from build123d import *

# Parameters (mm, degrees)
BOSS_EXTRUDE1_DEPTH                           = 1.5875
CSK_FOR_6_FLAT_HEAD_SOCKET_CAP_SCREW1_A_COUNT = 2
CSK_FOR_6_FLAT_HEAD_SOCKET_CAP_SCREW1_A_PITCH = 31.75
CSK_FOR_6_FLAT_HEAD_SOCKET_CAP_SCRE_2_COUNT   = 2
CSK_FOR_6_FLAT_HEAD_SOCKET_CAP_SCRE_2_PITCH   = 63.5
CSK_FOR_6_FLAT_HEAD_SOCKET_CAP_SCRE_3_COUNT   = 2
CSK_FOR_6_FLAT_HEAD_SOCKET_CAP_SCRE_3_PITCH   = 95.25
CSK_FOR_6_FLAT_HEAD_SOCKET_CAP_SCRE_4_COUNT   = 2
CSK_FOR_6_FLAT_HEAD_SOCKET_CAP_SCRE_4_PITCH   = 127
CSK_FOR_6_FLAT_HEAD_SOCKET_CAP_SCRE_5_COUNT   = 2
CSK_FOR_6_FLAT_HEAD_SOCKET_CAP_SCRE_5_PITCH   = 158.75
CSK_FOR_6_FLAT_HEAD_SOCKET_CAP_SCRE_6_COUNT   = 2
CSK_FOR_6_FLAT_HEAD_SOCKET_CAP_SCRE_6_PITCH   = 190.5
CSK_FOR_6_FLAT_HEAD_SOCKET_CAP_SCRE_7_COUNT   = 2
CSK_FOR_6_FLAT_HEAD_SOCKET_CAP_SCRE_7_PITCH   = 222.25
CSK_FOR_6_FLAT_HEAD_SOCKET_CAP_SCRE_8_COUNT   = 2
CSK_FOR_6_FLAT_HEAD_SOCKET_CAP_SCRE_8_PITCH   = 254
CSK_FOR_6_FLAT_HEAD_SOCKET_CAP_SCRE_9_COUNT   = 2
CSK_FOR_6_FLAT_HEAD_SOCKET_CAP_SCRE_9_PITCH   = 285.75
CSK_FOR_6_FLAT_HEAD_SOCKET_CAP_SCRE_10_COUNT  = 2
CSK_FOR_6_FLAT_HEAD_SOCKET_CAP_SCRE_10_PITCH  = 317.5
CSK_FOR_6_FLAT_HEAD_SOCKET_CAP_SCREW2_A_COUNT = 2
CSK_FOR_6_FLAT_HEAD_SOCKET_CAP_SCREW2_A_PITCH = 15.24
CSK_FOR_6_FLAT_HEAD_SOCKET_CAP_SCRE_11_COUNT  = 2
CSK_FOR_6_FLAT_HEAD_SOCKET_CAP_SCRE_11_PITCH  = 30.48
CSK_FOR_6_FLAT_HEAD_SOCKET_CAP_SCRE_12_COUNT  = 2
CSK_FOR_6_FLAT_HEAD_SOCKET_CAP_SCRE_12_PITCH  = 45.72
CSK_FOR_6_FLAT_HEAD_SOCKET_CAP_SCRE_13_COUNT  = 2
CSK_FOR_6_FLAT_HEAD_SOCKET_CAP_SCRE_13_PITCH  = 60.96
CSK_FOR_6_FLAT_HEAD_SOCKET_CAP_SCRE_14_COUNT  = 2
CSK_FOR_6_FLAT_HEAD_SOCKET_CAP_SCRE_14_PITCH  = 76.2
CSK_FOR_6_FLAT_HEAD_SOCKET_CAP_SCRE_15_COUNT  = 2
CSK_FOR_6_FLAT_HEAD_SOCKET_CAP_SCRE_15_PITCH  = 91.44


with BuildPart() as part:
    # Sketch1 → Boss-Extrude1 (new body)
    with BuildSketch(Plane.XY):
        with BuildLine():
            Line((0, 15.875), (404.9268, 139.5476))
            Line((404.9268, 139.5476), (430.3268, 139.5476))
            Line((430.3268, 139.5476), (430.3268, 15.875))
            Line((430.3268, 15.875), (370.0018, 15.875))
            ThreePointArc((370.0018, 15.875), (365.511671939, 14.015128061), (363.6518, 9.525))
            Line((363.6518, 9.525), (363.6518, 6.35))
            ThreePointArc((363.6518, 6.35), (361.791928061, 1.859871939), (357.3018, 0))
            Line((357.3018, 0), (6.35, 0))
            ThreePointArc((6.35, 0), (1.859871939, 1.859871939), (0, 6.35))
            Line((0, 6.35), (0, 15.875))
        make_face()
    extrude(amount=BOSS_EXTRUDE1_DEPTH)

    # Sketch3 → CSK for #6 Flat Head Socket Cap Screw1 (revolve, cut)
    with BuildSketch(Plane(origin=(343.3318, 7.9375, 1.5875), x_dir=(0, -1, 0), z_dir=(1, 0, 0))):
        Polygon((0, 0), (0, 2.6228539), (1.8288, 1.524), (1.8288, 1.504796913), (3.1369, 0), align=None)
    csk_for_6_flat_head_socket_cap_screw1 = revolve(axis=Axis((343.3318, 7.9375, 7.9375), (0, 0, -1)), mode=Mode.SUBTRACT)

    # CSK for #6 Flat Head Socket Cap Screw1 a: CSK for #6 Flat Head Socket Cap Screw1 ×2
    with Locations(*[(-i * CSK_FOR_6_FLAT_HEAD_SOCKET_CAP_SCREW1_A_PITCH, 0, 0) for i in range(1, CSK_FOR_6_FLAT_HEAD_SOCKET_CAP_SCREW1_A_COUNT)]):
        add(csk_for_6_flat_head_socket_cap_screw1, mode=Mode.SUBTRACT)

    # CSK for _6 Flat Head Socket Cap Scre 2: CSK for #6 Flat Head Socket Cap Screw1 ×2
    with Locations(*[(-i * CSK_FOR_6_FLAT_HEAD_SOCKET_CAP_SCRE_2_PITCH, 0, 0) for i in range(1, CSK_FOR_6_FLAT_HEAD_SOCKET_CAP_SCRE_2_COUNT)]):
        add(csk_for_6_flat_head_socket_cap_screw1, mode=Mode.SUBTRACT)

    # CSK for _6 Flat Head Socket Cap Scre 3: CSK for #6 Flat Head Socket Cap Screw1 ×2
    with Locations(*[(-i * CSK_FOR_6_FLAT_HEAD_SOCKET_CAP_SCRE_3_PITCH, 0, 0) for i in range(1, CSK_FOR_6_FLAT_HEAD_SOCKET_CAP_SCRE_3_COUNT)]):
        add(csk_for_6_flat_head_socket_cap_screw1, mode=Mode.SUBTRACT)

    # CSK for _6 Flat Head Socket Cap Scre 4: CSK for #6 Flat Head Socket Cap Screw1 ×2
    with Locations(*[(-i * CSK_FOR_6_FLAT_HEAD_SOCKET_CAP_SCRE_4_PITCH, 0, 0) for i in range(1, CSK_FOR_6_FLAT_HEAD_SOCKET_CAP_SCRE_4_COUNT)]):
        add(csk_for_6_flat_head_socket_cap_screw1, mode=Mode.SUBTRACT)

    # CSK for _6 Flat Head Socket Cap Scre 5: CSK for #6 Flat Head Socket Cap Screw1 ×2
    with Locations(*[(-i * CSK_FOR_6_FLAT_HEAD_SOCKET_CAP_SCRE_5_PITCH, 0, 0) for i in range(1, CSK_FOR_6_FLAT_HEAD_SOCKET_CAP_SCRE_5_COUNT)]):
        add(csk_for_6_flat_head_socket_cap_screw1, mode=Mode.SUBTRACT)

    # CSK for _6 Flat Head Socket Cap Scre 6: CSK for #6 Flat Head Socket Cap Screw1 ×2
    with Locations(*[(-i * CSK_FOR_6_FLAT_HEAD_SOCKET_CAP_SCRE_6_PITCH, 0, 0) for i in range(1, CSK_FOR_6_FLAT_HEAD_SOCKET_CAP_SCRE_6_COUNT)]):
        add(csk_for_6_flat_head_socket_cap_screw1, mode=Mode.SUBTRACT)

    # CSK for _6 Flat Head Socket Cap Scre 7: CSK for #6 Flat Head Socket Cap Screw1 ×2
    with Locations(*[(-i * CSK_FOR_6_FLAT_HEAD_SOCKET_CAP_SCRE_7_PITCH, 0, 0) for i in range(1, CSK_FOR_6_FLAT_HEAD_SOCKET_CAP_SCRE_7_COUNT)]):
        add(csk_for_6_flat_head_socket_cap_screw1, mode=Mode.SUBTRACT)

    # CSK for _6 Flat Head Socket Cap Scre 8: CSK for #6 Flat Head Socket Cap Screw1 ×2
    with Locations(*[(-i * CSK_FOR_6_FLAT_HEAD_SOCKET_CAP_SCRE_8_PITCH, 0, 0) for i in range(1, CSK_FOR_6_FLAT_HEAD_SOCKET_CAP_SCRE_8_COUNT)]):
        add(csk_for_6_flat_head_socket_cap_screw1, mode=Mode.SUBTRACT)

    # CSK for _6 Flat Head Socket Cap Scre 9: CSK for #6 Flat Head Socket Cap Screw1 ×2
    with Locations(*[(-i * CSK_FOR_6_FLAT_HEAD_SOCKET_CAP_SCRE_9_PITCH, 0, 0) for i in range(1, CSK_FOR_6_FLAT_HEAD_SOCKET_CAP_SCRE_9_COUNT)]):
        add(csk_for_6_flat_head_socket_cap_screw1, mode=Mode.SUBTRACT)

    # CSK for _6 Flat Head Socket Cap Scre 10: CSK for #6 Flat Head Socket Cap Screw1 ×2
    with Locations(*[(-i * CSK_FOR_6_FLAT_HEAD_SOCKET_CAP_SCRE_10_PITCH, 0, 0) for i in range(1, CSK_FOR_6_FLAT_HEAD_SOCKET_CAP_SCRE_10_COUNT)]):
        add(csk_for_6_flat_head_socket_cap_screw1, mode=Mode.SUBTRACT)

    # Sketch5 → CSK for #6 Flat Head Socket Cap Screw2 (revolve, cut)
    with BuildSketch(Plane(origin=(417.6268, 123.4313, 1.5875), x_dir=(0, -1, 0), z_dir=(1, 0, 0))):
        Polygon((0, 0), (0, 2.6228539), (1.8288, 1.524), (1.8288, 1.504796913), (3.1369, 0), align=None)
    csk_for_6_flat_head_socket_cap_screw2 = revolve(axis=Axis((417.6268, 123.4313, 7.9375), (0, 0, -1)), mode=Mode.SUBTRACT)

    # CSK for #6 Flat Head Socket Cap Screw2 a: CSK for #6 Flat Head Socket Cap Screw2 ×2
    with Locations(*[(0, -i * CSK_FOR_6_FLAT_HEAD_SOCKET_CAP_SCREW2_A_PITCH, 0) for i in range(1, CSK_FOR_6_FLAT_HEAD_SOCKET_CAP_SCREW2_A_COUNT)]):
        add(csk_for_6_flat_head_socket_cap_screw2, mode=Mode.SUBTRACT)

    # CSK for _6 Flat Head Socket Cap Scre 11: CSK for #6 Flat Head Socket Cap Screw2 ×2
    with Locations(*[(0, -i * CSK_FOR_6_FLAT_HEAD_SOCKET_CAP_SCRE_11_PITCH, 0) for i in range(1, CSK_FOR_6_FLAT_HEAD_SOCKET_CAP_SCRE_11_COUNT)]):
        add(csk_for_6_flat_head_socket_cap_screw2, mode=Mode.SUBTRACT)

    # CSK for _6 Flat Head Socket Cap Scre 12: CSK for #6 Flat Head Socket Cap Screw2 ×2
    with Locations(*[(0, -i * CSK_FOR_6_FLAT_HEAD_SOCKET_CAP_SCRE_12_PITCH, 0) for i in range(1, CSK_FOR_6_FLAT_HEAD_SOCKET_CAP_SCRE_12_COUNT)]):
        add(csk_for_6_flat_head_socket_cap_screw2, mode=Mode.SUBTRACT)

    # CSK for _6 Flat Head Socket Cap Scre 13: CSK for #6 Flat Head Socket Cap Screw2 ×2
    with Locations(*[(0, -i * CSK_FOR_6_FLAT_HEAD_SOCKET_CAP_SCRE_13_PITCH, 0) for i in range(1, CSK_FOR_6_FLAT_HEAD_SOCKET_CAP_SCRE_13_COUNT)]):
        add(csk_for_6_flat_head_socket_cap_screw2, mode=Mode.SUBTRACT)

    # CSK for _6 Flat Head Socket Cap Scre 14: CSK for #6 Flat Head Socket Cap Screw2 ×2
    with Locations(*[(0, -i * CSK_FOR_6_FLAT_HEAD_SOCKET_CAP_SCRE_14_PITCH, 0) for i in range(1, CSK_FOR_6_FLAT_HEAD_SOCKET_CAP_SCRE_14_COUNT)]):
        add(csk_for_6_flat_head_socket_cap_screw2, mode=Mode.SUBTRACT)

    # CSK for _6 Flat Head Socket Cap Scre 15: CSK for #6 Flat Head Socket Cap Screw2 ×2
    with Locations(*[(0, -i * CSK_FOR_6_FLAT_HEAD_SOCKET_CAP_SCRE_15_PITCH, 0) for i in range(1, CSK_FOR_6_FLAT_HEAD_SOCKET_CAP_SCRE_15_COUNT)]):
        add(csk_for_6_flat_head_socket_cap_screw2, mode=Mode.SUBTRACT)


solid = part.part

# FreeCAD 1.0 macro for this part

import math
import FreeCAD as App
import Part
import Sketcher
from FreeCAD import Vector
Q = App.Units.Quantity


def add_polygon(sketch, points):
    """Adds a closed chain of lines whose ends are joined by coincident constraints."""
    first, n = sketch.GeometryCount, len(points)
    for a, b in zip(points, points[1:] + points[:1]):
        sketch.addGeometry(Part.LineSegment(App.Vector(*a, 0), App.Vector(*b, 0)), False)
    for i in range(n):
        sketch.addConstraint(Sketcher.Constraint("Coincident", first + i, 2, first + (i + 1) % n, 1))

doc = App.newDocument("Part")
params = doc.addObject("Spreadsheet::Sheet", "Params")
for row, (alias, value) in enumerate([
    ("sketch1_width", "1 in"),
    ("sketch1_radius", "0.25 in"),
    ("sketch1_width2", "13.817 in"),
    ("sketch1_width3", "2.375 in"),
    ("sketch1_height", "0.375 in"),
    ("pad1_length", "0.0625 in"),
    ("groove_angle", "360 deg"),
    ("linearpattern_pitch", "1.25 in"),
    ("linearpattern2_pitch", "2.5 in"),
    ("linearpattern3_pitch", "3.75 in"),
    ("linearpattern4_pitch", "5 in"),
    ("linearpattern5_pitch", "6.25 in"),
    ("linearpattern6_pitch", "7.5 in"),
    ("linearpattern7_pitch", "8.75 in"),
    ("linearpattern8_pitch", "10 in"),
    ("linearpattern9_pitch", "11.25 in"),
    ("linearpattern10_pitch", "12.5 in"),
    ("groove2_angle", "360 deg"),
    ("linearpattern11_pitch", "0.6 in"),
    ("linearpattern12_pitch", "1.2 in"),
    ("linearpattern13_pitch", "1.8 in"),
    ("linearpattern14_pitch", "2.4 in"),
    ("linearpattern15_pitch", "3 in"),
    ("linearpattern16_pitch", "3.6 in"),
], start=1):
    params.set(f"A{row}", alias)
    params.set(f"B{row}", "=" + value)
    params.setAlias(f"B{row}", alias)

body = doc.addObject("PartDesign::Body", "Body")

# Sketch on XY plane
sketch1 = body.newObject("Sketcher::SketchObject", "Sketch")
sketch1.AttachmentSupport = (doc.getObject("XY_Plane"), [""])
sketch1.MapMode = "FlatFace"
sketch1.addGeometry([
    Part.LineSegment(Vector(404.9, 139.5, 0), Vector(0, 15.9, 0)),  # 0
    Part.LineSegment(Vector(0, 15.9, 0), Vector(0, 6.3, 0)),  # 1
    Part.ArcOfCircle(Part.Circle(Vector(6.3, 6.3, 0), Vector(0, 0, 1), 6.3), math.radians(180), math.radians(270)),  # 2
    Part.LineSegment(Vector(6.3, 0, 0), Vector(357.3, 0, 0)),  # 3
    Part.ArcOfCircle(Part.Circle(Vector(357.3, 6.3, 0), Vector(0, 0, 1), 6.3), math.radians(-90), math.radians(0)),  # 4
    Part.LineSegment(Vector(363.7, 6.3, 0), Vector(363.7, 9.5, 0)),  # 5
    Part.ArcOfCircle(Part.Circle(Vector(370, 9.5, 0), Vector(0, 0, 1), 6.3), math.radians(90), math.radians(180)),  # 6
    Part.LineSegment(Vector(370, 15.9, 0), Vector(430.3, 15.9, 0)),  # 7
    Part.LineSegment(Vector(430.3, 15.9, 0), Vector(430.3, 139.5, 0)),  # 8
    Part.LineSegment(Vector(430.3, 139.5, 0), Vector(404.9, 139.5, 0)),  # 9
], False)
sketch1.addConstraint([
    Sketcher.Constraint("Coincident", 0, 2, 1, 1),
    Sketcher.Constraint("Tangent", 1, 2, 2, 1),
    Sketcher.Constraint("Tangent", 2, 2, 3, 1),
    Sketcher.Constraint("Tangent", 3, 2, 4, 1),
    Sketcher.Constraint("Tangent", 4, 2, 5, 1),
    Sketcher.Constraint("Tangent", 5, 2, 6, 2),
    Sketcher.Constraint("Tangent", 6, 1, 7, 1),
    Sketcher.Constraint("Coincident", 7, 2, 8, 1),
    Sketcher.Constraint("Coincident", 8, 2, 9, 1),
    Sketcher.Constraint("Coincident", 9, 2, 0, 1),
    Sketcher.Constraint("Vertical", 1),
    Sketcher.Constraint("Horizontal", 3),
    Sketcher.Constraint("Vertical", 5),
    Sketcher.Constraint("Horizontal", 7),
    Sketcher.Constraint("Vertical", 8),
    Sketcher.Constraint("Horizontal", 9),
    Sketcher.Constraint("Equal", 2, 4),
    Sketcher.Constraint("Equal", 4, 6),
    Sketcher.Constraint("PointOnObject", 0, 2, -2),
    Sketcher.Constraint("PointOnObject", 2, 2, -1),
    Sketcher.Constraint("Horizontal", 0, 2, 6, 1),
    Sketcher.Constraint("DistanceX", 9, 2, 9, 1, Q("1 in")),
    Sketcher.Constraint("Radius", 2, Q("0.25 in")),
    Sketcher.Constraint("DistanceX", 3, 1, 3, 2, Q("13.817 in")),
    Sketcher.Constraint("DistanceX", 7, 1, 7, 2, Q("2.375 in")),
    Sketcher.Constraint("DistanceY", 1, 2, 1, 1, Q("0.375 in")),
    Sketcher.Constraint("DistanceY", 8, 1, 8, 2, Q("4.869 in")),
])
sketch1.setExpression("Constraints[21]", "Params.sketch1_width")
sketch1.setExpression("Constraints[22]", "Params.sketch1_radius")
sketch1.setExpression("Constraints[23]", "Params.sketch1_width2")
sketch1.setExpression("Constraints[24]", "Params.sketch1_width3")
sketch1.setExpression("Constraints[25]", "Params.sketch1_height")
pad1 = body.newObject("PartDesign::Pad", "Pad")
pad1.Profile = sketch1
pad1.setExpression("Length", "Params.pad1_length")

# Sketch on YZ plane
sketch2 = body.newObject("Sketcher::SketchObject", "Sketch001")
sketch2.AttachmentSupport = (doc.getObject("YZ_Plane"), [""])
sketch2.MapMode = "FlatFace"
sketch2.AttachmentOffset = App.Placement(Vector(0, 0, 13.517 * 25.4), App.Rotation())
add_polygon(sketch2, [(7.938, -1.035), (7.938, 1.587), (4.801, 1.587), (6.109, 0.083), (6.109, 0.064)])  # lines 0-4
sketch2.addGeometry(Part.LineSegment(Vector(7.938, 1.587, 0), Vector(7.938, -1.035, 0)), True)  # axis
sketch2.addConstraint([
    Sketcher.Constraint("Vertical", 0),
    Sketcher.Constraint("Horizontal", 1),
    Sketcher.Constraint("Vertical", 3),
    Sketcher.Constraint("Vertical", 5),
    Sketcher.Constraint("Coincident", 5, 1, 0, 2),
    Sketcher.Constraint("Equal", 0, 5),
    Sketcher.Constraint("Angle", 2, Q("-49 deg")),
    Sketcher.Constraint("Angle", 4, Q("-31 deg")),
    Sketcher.Constraint("DistanceY", 3, 2, 1, 2, Q("0.06 in")),
    Sketcher.Constraint("DistanceX", 1, 2, 1, 1, Q("0.1235 in")),
    Sketcher.Constraint("DistanceX", -1, 1, 0, 2, Q("0.3125 in")),
    Sketcher.Constraint("DistanceY", -1, 1, 0, 2, Q("0.0625 in")),
    Sketcher.Constraint("DistanceX", 2, 2, 0, 2, Q("0.072 in")),
])
groove = body.newObject("PartDesign::Groove", "Groove")
groove.Profile = sketch2
groove.ReferenceAxis = (sketch2, ["Axis0"])
groove.setExpression("Angle", "Params.groove_angle")
doc.recompute()

linearpattern = body.newObject("PartDesign::LinearPattern", "LinearPattern")
linearpattern.Originals = [groove]
linearpattern.Direction = (doc.getObject("X_Axis"), [""])
linearpattern.Mode = "offset"
linearpattern.setExpression("Offset", "Params.linearpattern_pitch")
linearpattern.Occurrences = 2
linearpattern.Reversed = True
body.Tip = linearpattern
doc.recompute()

linearpattern2 = body.newObject("PartDesign::LinearPattern", "LinearPattern001")
linearpattern2.Originals = [groove]
linearpattern2.Direction = (doc.getObject("X_Axis"), [""])
linearpattern2.Mode = "offset"
linearpattern2.setExpression("Offset", "Params.linearpattern2_pitch")
linearpattern2.Occurrences = 2
linearpattern2.Reversed = True
body.Tip = linearpattern2
doc.recompute()

linearpattern3 = body.newObject("PartDesign::LinearPattern", "LinearPattern002")
linearpattern3.Originals = [groove]
linearpattern3.Direction = (doc.getObject("X_Axis"), [""])
linearpattern3.Mode = "offset"
linearpattern3.setExpression("Offset", "Params.linearpattern3_pitch")
linearpattern3.Occurrences = 2
linearpattern3.Reversed = True
body.Tip = linearpattern3
doc.recompute()

linearpattern4 = body.newObject("PartDesign::LinearPattern", "LinearPattern003")
linearpattern4.Originals = [groove]
linearpattern4.Direction = (doc.getObject("X_Axis"), [""])
linearpattern4.Mode = "offset"
linearpattern4.setExpression("Offset", "Params.linearpattern4_pitch")
linearpattern4.Occurrences = 2
linearpattern4.Reversed = True
body.Tip = linearpattern4
doc.recompute()

linearpattern5 = body.newObject("PartDesign::LinearPattern", "LinearPattern004")
linearpattern5.Originals = [groove]
linearpattern5.Direction = (doc.getObject("X_Axis"), [""])
linearpattern5.Mode = "offset"
linearpattern5.setExpression("Offset", "Params.linearpattern5_pitch")
linearpattern5.Occurrences = 2
linearpattern5.Reversed = True
body.Tip = linearpattern5
doc.recompute()

linearpattern6 = body.newObject("PartDesign::LinearPattern", "LinearPattern005")
linearpattern6.Originals = [groove]
linearpattern6.Direction = (doc.getObject("X_Axis"), [""])
linearpattern6.Mode = "offset"
linearpattern6.setExpression("Offset", "Params.linearpattern6_pitch")
linearpattern6.Occurrences = 2
linearpattern6.Reversed = True
body.Tip = linearpattern6
doc.recompute()

linearpattern7 = body.newObject("PartDesign::LinearPattern", "LinearPattern006")
linearpattern7.Originals = [groove]
linearpattern7.Direction = (doc.getObject("X_Axis"), [""])
linearpattern7.Mode = "offset"
linearpattern7.setExpression("Offset", "Params.linearpattern7_pitch")
linearpattern7.Occurrences = 2
linearpattern7.Reversed = True
body.Tip = linearpattern7
doc.recompute()

linearpattern8 = body.newObject("PartDesign::LinearPattern", "LinearPattern007")
linearpattern8.Originals = [groove]
linearpattern8.Direction = (doc.getObject("X_Axis"), [""])
linearpattern8.Mode = "offset"
linearpattern8.setExpression("Offset", "Params.linearpattern8_pitch")
linearpattern8.Occurrences = 2
linearpattern8.Reversed = True
body.Tip = linearpattern8
doc.recompute()

linearpattern9 = body.newObject("PartDesign::LinearPattern", "LinearPattern008")
linearpattern9.Originals = [groove]
linearpattern9.Direction = (doc.getObject("X_Axis"), [""])
linearpattern9.Mode = "offset"
linearpattern9.setExpression("Offset", "Params.linearpattern9_pitch")
linearpattern9.Occurrences = 2
linearpattern9.Reversed = True
body.Tip = linearpattern9
doc.recompute()

linearpattern10 = body.newObject("PartDesign::LinearPattern", "LinearPattern009")
linearpattern10.Originals = [groove]
linearpattern10.Direction = (doc.getObject("X_Axis"), [""])
linearpattern10.Mode = "offset"
linearpattern10.setExpression("Offset", "Params.linearpattern10_pitch")
linearpattern10.Occurrences = 2
linearpattern10.Reversed = True
body.Tip = linearpattern10

# Sketch on YZ plane
sketch3 = body.newObject("Sketcher::SketchObject", "Sketch002")
sketch3.AttachmentSupport = (doc.getObject("YZ_Plane"), [""])
sketch3.MapMode = "FlatFace"
sketch3.AttachmentOffset = App.Placement(Vector(0, 0, 16.442 * 25.4), App.Rotation())
add_polygon(sketch3, [(123.431, -1.035), (123.431, 1.587), (120.294, 1.587), (121.603, 0.083), (121.603, 0.064)])  # lines 0-4
sketch3.addGeometry(Part.LineSegment(Vector(123.431, 1.587, 0), Vector(123.431, -1.035, 0)), True)  # axis
sketch3.addConstraint([
    Sketcher.Constraint("Vertical", 0),
    Sketcher.Constraint("Horizontal", 1),
    Sketcher.Constraint("Vertical", 3),
    Sketcher.Constraint("Vertical", 5),
    Sketcher.Constraint("Coincident", 5, 1, 0, 2),
    Sketcher.Constraint("Equal", 0, 5),
    Sketcher.Constraint("Angle", 2, Q("-49 deg")),
    Sketcher.Constraint("Angle", 4, Q("-31 deg")),
    Sketcher.Constraint("DistanceY", 3, 2, 1, 2, Q("0.06 in")),
    Sketcher.Constraint("DistanceX", 1, 2, 1, 1, Q("0.1235 in")),
    Sketcher.Constraint("DistanceY", -1, 1, 0, 2, Q("0.0625 in")),
    Sketcher.Constraint("DistanceX", -1, 1, 1, 2, Q("4.736 in")),
    Sketcher.Constraint("DistanceX", 2, 2, 0, 2, Q("0.072 in")),
])
groove2 = body.newObject("PartDesign::Groove", "Groove001")
groove2.Profile = sketch3
groove2.ReferenceAxis = (sketch3, ["Axis0"])
groove2.setExpression("Angle", "Params.groove2_angle")
doc.recompute()

linearpattern11 = body.newObject("PartDesign::LinearPattern", "LinearPattern010")
linearpattern11.Originals = [groove2]
linearpattern11.Direction = (doc.getObject("Y_Axis"), [""])
linearpattern11.Mode = "offset"
linearpattern11.setExpression("Offset", "Params.linearpattern11_pitch")
linearpattern11.Occurrences = 2
linearpattern11.Reversed = True
body.Tip = linearpattern11
doc.recompute()

linearpattern12 = body.newObject("PartDesign::LinearPattern", "LinearPattern011")
linearpattern12.Originals = [groove2]
linearpattern12.Direction = (doc.getObject("Y_Axis"), [""])
linearpattern12.Mode = "offset"
linearpattern12.setExpression("Offset", "Params.linearpattern12_pitch")
linearpattern12.Occurrences = 2
linearpattern12.Reversed = True
body.Tip = linearpattern12
doc.recompute()

linearpattern13 = body.newObject("PartDesign::LinearPattern", "LinearPattern012")
linearpattern13.Originals = [groove2]
linearpattern13.Direction = (doc.getObject("Y_Axis"), [""])
linearpattern13.Mode = "offset"
linearpattern13.setExpression("Offset", "Params.linearpattern13_pitch")
linearpattern13.Occurrences = 2
linearpattern13.Reversed = True
body.Tip = linearpattern13
doc.recompute()

linearpattern14 = body.newObject("PartDesign::LinearPattern", "LinearPattern013")
linearpattern14.Originals = [groove2]
linearpattern14.Direction = (doc.getObject("Y_Axis"), [""])
linearpattern14.Mode = "offset"
linearpattern14.setExpression("Offset", "Params.linearpattern14_pitch")
linearpattern14.Occurrences = 2
linearpattern14.Reversed = True
body.Tip = linearpattern14
doc.recompute()

linearpattern15 = body.newObject("PartDesign::LinearPattern", "LinearPattern014")
linearpattern15.Originals = [groove2]
linearpattern15.Direction = (doc.getObject("Y_Axis"), [""])
linearpattern15.Mode = "offset"
linearpattern15.setExpression("Offset", "Params.linearpattern15_pitch")
linearpattern15.Occurrences = 2
linearpattern15.Reversed = True
body.Tip = linearpattern15
doc.recompute()

linearpattern16 = body.newObject("PartDesign::LinearPattern", "LinearPattern015")
linearpattern16.Originals = [groove2]
linearpattern16.Direction = (doc.getObject("Y_Axis"), [""])
linearpattern16.Mode = "offset"
linearpattern16.setExpression("Offset", "Params.linearpattern16_pitch")
linearpattern16.Occurrences = 2
linearpattern16.Reversed = True
body.Tip = linearpattern16

doc.recompute()
